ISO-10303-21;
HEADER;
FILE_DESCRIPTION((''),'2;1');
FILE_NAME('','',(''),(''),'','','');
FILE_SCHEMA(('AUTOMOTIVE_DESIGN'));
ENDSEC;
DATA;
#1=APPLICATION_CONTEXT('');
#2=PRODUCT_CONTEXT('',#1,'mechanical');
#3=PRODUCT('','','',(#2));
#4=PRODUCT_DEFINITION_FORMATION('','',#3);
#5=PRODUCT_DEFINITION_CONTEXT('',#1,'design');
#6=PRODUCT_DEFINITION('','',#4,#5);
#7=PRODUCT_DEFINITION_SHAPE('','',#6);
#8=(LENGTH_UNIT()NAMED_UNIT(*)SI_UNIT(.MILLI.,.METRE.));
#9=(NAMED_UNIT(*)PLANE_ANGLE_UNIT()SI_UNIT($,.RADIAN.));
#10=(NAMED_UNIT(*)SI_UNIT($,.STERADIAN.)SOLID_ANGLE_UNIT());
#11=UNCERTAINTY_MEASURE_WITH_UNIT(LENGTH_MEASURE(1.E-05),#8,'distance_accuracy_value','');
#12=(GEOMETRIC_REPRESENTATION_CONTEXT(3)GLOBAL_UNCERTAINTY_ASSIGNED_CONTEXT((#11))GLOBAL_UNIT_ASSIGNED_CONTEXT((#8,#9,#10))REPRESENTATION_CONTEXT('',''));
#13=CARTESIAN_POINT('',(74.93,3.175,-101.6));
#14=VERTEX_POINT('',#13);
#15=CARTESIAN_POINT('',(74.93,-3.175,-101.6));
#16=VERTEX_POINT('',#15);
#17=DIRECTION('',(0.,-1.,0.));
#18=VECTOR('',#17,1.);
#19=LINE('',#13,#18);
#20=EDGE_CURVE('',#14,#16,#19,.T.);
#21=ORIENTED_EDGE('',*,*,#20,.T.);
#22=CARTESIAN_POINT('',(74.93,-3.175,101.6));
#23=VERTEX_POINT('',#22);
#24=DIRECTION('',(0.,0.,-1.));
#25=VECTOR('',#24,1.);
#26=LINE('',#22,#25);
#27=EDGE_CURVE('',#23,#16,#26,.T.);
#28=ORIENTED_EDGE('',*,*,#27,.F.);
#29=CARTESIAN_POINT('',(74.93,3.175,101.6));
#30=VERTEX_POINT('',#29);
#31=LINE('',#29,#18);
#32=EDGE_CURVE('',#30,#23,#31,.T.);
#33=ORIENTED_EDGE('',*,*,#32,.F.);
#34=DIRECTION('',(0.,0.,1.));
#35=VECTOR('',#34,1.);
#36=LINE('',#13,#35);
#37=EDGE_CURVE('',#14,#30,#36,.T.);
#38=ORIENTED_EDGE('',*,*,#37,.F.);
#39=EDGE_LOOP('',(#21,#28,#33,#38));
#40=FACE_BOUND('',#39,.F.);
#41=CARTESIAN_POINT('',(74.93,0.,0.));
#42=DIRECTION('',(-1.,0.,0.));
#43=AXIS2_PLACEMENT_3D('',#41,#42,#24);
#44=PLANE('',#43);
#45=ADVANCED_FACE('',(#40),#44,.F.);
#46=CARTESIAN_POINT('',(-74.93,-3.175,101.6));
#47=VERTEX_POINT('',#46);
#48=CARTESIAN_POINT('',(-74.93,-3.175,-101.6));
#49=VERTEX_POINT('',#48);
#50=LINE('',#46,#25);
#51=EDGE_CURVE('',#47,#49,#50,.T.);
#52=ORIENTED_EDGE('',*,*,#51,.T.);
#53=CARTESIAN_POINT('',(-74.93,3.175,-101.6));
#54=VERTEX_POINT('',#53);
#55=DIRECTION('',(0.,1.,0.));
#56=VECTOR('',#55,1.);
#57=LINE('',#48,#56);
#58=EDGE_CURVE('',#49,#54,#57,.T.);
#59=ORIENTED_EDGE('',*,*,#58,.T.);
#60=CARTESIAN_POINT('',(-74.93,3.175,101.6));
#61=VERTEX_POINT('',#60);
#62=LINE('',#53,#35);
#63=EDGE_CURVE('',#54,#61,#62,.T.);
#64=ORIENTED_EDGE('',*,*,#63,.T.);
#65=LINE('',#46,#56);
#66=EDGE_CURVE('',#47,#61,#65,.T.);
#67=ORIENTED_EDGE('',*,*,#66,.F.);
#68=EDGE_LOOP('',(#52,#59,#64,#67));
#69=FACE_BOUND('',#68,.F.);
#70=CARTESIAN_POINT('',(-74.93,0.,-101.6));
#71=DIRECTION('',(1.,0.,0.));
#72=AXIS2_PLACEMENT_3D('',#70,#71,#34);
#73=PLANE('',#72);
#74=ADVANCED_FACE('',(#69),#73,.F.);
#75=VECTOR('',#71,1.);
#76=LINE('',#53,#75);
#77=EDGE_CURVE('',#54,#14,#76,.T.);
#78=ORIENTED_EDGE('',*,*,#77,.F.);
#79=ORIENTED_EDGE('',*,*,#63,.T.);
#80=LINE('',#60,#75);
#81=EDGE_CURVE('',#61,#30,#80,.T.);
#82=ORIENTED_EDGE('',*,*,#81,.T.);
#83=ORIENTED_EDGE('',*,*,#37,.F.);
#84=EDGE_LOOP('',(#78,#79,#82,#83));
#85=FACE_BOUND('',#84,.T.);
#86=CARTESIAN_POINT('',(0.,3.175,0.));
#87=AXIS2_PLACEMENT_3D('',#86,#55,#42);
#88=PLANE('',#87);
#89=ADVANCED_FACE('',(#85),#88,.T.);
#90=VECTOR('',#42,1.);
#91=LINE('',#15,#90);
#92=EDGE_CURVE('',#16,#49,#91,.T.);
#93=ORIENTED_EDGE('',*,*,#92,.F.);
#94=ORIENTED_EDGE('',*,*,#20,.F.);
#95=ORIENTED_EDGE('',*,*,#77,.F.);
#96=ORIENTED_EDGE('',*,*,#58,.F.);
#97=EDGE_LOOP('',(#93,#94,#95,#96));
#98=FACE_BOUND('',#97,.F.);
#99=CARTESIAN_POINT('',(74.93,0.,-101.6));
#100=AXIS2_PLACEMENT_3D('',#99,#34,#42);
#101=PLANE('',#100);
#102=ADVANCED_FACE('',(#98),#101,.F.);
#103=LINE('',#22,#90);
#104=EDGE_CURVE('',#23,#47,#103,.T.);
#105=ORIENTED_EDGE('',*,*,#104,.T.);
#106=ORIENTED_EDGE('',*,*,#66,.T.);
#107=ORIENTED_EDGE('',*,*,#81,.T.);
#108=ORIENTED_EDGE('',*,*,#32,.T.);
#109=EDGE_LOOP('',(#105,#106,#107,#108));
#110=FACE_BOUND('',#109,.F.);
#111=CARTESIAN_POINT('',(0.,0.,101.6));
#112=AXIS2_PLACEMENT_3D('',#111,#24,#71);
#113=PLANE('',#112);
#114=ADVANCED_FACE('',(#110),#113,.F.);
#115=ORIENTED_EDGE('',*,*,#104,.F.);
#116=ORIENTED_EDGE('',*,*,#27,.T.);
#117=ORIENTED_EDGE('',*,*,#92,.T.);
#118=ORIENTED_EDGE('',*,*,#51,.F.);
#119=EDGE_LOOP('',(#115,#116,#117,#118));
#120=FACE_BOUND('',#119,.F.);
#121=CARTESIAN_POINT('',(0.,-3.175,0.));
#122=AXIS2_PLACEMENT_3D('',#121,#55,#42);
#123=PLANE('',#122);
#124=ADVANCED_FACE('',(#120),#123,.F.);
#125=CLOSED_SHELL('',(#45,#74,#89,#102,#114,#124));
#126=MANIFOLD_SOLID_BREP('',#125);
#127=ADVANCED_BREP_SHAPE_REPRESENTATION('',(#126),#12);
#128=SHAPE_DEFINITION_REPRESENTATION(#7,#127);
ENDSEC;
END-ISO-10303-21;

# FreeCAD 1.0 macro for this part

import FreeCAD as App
import Part
import Sketcher
Q = App.Units.Quantity

doc = App.newDocument("Part")
body = doc.addObject("PartDesign::Body", "Body")

sketch1 = body.newObject("Sketcher::SketchObject", "Sketch")
sketch1.AttachmentSupport = (doc.getObject("XZ_Plane"), [""])
sketch1.MapMode = "FlatFace"
sketch1.addGeometry([
    Part.LineSegment(App.Vector(74.93, -101.6, 0), App.Vector(-74.93, -101.6, 0)),
    Part.LineSegment(App.Vector(-74.93, -101.6, 0), App.Vector(-74.93, 101.6, 0)),
    Part.LineSegment(App.Vector(-74.93, 101.6, 0), App.Vector(74.93, 101.6, 0)),
    Part.LineSegment(App.Vector(74.93, 101.6, 0), App.Vector(74.93, -101.6, 0)),
], False)
sketch1.addConstraint([
    Sketcher.Constraint("Coincident", 0, 2, 1, 1),
    Sketcher.Constraint("Coincident", 1, 2, 2, 1),
    Sketcher.Constraint("Coincident", 2, 2, 3, 1),
    Sketcher.Constraint("Coincident", 3, 2, 0, 1),
    Sketcher.Constraint("Horizontal", 0),
    Sketcher.Constraint("Vertical", 1),
    Sketcher.Constraint("Horizontal", 2),
    Sketcher.Constraint("Vertical", 3),
    Sketcher.Constraint("Symmetric", 0, 2, 2, 2, -1, 1),
    Sketcher.Constraint("DistanceY", 1, 1, 1, 2, Q("8 in")),
    Sketcher.Constraint("DistanceX", 0, 2, 0, 1, Q("5.9 in")),
])
pad1 = body.newObject("PartDesign::Pad", "Pad")
pad1.Profile = sketch1
pad1.Length = Q("0.25 in")
pad1.Midplane = True

doc.recompute()
